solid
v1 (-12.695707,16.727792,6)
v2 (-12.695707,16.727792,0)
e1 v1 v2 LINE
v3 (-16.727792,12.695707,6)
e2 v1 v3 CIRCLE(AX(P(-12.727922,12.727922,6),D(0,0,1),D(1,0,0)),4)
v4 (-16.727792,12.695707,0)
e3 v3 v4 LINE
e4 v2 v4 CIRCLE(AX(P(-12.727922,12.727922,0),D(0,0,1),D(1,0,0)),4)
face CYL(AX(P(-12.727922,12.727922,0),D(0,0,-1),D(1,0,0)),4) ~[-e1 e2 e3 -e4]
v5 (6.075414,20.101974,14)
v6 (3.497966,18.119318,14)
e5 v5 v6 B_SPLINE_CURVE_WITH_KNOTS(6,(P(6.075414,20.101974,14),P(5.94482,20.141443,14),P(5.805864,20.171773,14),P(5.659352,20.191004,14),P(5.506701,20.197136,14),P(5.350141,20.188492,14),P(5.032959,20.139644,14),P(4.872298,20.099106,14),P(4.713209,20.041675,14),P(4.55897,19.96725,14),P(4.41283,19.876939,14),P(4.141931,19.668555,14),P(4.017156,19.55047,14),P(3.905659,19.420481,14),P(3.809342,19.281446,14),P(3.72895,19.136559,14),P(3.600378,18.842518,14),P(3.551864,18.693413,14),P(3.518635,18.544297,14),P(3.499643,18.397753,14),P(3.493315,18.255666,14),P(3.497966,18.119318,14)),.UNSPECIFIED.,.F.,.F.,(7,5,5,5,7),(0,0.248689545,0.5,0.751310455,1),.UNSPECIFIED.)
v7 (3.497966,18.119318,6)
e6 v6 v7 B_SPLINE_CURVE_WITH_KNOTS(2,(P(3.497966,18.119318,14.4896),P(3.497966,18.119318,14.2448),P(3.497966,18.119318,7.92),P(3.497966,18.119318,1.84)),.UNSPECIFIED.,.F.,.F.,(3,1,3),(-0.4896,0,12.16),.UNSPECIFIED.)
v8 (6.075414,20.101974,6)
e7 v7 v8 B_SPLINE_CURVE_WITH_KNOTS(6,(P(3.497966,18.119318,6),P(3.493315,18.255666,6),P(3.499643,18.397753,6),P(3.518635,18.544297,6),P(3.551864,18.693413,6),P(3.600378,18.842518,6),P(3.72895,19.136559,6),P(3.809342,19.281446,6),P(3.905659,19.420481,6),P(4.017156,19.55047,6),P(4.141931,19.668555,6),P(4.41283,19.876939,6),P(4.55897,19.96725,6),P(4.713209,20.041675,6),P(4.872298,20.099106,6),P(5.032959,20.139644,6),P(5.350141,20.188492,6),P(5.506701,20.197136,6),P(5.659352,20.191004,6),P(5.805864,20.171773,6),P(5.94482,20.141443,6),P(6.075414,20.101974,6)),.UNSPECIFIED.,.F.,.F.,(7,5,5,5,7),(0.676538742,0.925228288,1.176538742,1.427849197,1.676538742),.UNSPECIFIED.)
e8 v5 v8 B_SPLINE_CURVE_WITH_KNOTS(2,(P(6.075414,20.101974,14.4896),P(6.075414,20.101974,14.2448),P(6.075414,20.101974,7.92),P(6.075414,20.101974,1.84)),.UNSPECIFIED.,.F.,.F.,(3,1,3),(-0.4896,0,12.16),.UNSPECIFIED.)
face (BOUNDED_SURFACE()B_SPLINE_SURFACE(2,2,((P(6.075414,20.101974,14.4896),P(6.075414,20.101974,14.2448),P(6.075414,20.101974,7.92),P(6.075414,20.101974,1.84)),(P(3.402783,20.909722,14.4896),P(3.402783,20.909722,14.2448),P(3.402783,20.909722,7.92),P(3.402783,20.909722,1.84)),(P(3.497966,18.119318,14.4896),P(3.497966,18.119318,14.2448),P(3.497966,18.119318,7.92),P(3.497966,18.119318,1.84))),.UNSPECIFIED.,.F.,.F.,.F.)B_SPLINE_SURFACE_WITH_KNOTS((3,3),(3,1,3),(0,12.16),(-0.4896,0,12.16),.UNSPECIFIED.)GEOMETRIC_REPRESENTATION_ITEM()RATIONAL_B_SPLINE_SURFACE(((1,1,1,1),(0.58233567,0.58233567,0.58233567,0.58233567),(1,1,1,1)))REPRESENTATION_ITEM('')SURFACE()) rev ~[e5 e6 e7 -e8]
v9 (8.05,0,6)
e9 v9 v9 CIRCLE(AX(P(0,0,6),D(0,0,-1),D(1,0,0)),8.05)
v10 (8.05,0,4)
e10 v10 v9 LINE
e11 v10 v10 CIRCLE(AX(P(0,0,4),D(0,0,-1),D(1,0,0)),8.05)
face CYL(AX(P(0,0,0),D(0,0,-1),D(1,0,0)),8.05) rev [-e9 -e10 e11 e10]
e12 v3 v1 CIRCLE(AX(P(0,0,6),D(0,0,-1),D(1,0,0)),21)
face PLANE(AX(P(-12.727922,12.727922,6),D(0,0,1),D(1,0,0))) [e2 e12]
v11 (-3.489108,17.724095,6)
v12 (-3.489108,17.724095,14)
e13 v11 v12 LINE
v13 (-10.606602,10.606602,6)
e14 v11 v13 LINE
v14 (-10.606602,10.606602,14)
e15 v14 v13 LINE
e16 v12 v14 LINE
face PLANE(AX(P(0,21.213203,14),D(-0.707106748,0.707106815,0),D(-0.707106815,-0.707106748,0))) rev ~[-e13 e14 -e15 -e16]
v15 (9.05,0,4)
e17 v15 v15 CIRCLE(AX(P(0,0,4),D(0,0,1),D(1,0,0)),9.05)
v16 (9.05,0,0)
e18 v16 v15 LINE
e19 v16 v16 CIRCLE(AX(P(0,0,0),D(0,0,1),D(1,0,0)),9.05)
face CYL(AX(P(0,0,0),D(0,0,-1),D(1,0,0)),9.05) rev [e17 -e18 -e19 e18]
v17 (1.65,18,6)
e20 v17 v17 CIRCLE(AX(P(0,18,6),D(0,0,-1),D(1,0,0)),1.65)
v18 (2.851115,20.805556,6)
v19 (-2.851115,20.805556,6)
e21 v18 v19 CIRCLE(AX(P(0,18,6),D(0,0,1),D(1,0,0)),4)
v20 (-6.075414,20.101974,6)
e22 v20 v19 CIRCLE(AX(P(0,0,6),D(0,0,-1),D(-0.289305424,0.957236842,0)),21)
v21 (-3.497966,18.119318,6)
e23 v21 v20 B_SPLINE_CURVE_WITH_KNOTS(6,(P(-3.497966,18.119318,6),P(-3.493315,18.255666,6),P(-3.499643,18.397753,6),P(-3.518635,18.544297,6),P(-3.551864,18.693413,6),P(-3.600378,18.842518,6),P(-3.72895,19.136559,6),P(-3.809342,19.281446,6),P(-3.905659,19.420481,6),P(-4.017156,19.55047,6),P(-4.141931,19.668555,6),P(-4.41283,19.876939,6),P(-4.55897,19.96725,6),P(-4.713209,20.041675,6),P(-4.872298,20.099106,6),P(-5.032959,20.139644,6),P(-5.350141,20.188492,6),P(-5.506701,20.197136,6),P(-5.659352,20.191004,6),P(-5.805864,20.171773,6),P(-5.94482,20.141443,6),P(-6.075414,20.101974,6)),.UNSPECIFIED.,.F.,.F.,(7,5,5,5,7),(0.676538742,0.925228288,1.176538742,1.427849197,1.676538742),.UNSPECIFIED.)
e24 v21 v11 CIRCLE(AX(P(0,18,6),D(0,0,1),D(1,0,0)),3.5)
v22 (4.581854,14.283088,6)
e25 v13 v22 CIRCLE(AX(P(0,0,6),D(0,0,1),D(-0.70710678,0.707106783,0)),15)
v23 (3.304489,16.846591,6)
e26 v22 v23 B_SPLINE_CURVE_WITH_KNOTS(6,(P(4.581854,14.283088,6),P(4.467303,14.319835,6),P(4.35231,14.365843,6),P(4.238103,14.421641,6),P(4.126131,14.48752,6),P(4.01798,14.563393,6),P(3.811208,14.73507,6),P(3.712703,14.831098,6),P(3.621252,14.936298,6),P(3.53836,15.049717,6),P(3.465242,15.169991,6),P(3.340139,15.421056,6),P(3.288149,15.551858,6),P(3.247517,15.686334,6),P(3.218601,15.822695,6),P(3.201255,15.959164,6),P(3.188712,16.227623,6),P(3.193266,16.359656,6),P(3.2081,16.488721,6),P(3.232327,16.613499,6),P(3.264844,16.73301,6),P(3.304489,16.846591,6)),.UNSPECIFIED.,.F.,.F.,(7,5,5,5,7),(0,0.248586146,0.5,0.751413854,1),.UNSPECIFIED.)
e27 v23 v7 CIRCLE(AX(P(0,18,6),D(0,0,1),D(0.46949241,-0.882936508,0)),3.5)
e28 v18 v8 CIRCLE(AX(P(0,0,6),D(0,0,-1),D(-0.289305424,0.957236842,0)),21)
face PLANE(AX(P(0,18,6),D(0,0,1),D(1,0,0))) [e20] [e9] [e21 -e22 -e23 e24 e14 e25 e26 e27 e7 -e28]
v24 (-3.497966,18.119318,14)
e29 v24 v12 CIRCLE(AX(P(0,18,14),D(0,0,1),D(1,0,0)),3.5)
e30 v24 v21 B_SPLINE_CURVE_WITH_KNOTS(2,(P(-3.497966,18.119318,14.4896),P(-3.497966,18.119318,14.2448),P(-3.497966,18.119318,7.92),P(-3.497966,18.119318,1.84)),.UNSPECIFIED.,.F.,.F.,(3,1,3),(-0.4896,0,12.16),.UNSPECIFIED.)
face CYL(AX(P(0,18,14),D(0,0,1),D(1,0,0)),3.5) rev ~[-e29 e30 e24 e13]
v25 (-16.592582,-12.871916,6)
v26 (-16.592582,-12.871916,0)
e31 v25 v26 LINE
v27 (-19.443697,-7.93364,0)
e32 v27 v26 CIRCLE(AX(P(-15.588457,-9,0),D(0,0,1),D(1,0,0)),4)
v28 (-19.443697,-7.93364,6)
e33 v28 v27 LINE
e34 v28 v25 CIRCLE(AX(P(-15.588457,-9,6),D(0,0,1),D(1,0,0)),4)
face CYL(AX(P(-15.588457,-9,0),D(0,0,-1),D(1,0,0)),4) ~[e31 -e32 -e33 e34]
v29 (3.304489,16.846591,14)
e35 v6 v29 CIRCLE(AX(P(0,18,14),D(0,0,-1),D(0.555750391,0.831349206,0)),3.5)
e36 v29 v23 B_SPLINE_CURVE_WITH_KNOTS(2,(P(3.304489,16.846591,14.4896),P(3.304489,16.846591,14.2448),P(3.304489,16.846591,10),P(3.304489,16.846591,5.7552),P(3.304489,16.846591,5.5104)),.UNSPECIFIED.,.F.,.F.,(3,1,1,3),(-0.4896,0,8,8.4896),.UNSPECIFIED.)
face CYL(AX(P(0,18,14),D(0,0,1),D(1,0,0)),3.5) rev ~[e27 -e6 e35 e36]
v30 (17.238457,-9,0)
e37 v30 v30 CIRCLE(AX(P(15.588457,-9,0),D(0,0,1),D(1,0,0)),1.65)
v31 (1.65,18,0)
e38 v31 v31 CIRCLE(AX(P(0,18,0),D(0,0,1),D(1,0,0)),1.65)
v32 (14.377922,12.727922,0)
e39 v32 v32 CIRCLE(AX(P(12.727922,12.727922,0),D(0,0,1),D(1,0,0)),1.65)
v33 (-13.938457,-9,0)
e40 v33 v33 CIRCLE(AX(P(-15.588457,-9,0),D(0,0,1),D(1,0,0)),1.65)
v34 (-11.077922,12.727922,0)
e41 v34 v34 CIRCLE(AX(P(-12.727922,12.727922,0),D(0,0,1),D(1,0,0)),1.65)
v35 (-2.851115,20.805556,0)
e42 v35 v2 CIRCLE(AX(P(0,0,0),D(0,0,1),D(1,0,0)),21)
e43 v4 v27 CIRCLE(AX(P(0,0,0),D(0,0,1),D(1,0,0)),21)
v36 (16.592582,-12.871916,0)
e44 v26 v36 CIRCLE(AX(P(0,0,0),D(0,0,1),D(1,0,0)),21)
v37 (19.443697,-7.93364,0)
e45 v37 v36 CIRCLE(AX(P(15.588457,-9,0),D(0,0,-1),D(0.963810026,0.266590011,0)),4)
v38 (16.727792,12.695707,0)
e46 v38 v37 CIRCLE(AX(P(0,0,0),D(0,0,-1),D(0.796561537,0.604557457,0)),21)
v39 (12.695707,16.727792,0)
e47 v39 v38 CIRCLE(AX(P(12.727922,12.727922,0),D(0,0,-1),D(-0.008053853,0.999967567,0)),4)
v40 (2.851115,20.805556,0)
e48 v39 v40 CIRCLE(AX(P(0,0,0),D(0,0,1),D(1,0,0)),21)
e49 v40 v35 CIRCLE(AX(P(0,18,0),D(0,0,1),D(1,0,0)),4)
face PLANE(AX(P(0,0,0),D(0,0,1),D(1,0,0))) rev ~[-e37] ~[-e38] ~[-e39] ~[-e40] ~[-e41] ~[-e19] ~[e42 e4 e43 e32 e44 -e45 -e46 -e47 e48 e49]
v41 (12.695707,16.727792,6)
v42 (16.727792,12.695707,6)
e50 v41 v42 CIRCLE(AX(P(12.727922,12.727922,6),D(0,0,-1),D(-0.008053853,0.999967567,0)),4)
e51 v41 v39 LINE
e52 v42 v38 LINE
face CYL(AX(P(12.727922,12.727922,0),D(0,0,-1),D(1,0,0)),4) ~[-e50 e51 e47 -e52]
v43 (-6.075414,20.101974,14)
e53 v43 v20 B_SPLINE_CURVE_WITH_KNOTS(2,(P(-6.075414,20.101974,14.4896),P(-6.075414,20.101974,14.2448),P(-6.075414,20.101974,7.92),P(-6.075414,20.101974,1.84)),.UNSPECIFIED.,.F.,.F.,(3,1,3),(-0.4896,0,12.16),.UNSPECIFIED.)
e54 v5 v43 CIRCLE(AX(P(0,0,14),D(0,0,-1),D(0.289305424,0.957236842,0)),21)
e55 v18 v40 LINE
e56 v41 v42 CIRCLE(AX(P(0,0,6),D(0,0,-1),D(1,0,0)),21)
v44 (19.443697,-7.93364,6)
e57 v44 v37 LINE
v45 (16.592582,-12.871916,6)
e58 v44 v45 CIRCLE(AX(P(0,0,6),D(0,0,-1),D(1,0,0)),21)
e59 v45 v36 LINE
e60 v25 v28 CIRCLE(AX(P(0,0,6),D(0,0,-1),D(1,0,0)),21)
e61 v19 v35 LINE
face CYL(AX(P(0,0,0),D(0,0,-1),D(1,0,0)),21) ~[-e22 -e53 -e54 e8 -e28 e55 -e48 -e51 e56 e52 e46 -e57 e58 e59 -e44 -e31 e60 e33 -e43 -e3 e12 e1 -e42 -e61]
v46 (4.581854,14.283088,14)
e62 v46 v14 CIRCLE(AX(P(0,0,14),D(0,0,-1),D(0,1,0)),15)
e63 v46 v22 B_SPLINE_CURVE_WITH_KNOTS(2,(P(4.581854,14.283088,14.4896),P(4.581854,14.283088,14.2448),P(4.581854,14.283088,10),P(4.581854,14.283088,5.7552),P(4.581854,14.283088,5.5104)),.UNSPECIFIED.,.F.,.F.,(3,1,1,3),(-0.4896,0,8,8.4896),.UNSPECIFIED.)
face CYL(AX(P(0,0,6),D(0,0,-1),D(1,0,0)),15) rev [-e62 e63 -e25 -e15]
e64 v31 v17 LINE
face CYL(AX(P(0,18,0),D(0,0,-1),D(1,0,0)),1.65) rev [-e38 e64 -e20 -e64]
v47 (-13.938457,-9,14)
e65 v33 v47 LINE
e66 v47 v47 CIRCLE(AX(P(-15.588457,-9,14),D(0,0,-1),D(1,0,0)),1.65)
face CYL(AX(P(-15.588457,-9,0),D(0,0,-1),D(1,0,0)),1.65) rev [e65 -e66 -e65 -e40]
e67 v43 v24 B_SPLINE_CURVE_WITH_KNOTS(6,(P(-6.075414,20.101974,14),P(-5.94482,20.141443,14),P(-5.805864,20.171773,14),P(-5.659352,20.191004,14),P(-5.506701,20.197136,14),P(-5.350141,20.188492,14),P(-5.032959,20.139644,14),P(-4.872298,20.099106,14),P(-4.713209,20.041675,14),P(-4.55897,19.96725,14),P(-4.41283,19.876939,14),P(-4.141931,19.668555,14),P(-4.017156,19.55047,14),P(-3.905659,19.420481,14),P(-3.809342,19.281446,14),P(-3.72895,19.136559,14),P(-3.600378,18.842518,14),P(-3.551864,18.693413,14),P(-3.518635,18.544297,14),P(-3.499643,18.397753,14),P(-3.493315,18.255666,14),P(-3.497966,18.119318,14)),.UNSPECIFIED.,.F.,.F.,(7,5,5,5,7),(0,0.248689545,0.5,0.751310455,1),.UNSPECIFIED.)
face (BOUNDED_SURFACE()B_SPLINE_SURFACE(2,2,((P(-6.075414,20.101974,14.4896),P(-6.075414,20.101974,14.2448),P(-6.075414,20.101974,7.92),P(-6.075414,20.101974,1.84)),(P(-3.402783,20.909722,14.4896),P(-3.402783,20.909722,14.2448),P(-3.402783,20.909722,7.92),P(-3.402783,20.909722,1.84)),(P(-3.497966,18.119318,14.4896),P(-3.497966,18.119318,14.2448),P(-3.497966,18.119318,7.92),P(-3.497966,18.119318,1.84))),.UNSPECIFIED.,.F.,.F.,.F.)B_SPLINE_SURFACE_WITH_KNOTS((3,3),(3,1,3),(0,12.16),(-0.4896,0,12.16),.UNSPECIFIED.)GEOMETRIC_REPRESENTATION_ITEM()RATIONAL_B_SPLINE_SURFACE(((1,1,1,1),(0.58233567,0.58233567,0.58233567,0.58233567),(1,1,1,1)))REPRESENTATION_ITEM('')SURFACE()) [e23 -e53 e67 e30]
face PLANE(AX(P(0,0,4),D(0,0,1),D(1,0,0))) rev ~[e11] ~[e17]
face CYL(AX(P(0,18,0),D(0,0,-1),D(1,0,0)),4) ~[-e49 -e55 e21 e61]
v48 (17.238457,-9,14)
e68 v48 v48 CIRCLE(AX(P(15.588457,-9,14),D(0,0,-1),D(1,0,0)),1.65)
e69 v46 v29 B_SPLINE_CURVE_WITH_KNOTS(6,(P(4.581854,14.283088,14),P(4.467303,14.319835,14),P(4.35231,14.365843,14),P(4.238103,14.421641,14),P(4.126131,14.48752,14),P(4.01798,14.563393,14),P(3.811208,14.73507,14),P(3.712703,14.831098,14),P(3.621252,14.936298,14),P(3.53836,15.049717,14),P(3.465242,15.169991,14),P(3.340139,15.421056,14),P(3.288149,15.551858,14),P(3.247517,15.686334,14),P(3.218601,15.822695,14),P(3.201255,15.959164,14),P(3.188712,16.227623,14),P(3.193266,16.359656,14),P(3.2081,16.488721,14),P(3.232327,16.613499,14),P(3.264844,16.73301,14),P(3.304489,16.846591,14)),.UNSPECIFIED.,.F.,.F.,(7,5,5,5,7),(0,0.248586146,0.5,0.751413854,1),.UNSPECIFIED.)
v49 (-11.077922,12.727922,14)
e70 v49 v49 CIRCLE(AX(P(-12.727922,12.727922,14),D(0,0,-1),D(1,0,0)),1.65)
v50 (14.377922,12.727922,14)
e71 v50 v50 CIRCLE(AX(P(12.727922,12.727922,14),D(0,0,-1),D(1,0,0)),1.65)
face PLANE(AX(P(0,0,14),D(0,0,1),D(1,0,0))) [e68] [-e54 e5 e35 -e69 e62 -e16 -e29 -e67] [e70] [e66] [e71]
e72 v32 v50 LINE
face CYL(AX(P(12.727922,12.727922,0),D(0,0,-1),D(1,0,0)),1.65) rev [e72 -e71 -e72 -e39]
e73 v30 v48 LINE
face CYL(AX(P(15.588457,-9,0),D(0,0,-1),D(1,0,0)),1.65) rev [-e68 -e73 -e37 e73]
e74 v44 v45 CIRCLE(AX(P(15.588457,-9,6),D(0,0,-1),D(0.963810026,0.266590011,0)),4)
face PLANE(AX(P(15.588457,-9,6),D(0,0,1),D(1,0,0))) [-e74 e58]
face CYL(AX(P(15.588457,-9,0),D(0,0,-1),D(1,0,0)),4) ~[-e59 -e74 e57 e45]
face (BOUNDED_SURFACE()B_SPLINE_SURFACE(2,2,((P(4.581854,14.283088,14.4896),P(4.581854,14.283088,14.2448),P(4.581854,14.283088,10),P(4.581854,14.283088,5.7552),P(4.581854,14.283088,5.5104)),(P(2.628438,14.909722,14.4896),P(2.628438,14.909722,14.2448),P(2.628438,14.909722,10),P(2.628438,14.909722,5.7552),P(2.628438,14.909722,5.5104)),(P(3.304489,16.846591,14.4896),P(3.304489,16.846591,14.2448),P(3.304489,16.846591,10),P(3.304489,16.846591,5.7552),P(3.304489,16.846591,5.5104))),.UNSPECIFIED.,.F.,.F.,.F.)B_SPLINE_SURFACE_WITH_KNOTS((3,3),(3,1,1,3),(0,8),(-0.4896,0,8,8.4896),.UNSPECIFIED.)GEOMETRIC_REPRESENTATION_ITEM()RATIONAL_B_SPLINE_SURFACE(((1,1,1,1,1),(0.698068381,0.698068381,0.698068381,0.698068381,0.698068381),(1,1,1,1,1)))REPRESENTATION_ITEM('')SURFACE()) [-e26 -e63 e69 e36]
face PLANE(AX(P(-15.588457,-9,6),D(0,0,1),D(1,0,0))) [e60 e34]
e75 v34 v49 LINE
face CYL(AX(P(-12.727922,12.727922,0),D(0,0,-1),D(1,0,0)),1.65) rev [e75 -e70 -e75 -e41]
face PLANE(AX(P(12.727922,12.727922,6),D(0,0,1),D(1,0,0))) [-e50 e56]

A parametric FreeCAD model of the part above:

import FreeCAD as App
import Part
import Sketcher

V = App.Vector
Q = App.Units.Quantity


def edges_at(feature, points):
    """Names of the edges that pass closest to the given points."""
    edges = feature.Shape.Edges
    near = lambda p: min(range(len(edges)), key=lambda i: edges[i].distToShape(Part.Vertex(*p))[0])
    return sorted({f"Edge{near(p) + 1}" for p in points})


def add_polygon(sketch, points):
    """Adds a closed chain of lines whose ends are joined by coincident constraints."""
    first, n = sketch.GeometryCount, len(points)
    for a, b in zip(points, points[1:] + points[:1]):
        sketch.addGeometry(Part.LineSegment(App.Vector(*a, 0), App.Vector(*b, 0)), False)
    for i in range(n):
        sketch.addConstraint(Sketcher.Constraint("Coincident", first + i, 2, first + (i + 1) % n, 1))

doc = App.newDocument("Part")
body = doc.addObject("PartDesign::Body", "Body")

# Sketch on XY plane
sketch1 = body.newObject("Sketcher::SketchObject", "Sketch")
sketch1.AttachmentSupport = (doc.getObject("XY_Plane"), [""])
sketch1.MapMode = "FlatFace"
sketch1.addGeometry(Part.Circle(V(0, 0, 0), V(0, 0, 1), 21), False)
sketch1.addConstraint(Sketcher.Constraint("Coincident", 0, 3, -1, 1))
sketch1.addConstraint(Sketcher.Constraint("Diameter", 0, Q("42 mm")))
pad1 = body.newObject("PartDesign::Pad", "Pad")
pad1.Profile = sketch1
pad1.Length = 14

# Sketch on XY plane
sketch2 = body.newObject("Sketcher::SketchObject", "Sketch001")
sketch2.AttachmentSupport = (doc.getObject("XY_Plane"), [""])
sketch2.MapMode = "FlatFace"
sketch2.addGeometry(Part.Circle(V(0, 0, 0), V(0, 0, 1), 9.05), False)
sketch2.addConstraint(Sketcher.Constraint("Coincident", 0, 3, -1, 1))
sketch2.addConstraint(Sketcher.Constraint("Diameter", 0, Q("18.1 mm")))
pocket1 = body.newObject("PartDesign::Pocket", "Pocket")
pocket1.Profile = sketch2
pocket1.Length = 4
pocket1.Reversed = True

# Sketch on XY plane
sketch3 = body.newObject("Sketcher::SketchObject", "Sketch002")
sketch3.AttachmentSupport = (doc.getObject("XY_Plane"), [""])
sketch3.MapMode = "FlatFace"
sketch3.addGeometry(Part.Circle(V(0, 0, 0), V(0, 0, 1), 8.05), False)
sketch3.addConstraint(Sketcher.Constraint("Coincident", 0, 3, -1, 1))
sketch3.addConstraint(Sketcher.Constraint("Diameter", 0, Q("16.1 mm")))
pocket2 = body.newObject("PartDesign::Pocket", "Pocket001")
pocket2.Profile = sketch3
pocket2.Type = "ThroughAll"
pocket2.Reversed = True

# Sketch on XY plane
sketch4 = body.newObject("Sketcher::SketchObject", "Sketch003")
sketch4.AttachmentSupport = (doc.getObject("XY_Plane"), [""])
sketch4.MapMode = "FlatFace"
sketch4.AttachmentOffset = App.Placement(V(0, 0, 6), App.Rotation())
sketch4.addGeometry(Part.Circle(V(0, 0, 0), V(0, 0, 1), 15), False)
sketch4.addConstraint(Sketcher.Constraint("Coincident", 0, 3, -1, 1))
sketch4.addConstraint(Sketcher.Constraint("Diameter", 0, Q("30 mm")))
pocket3 = body.newObject("PartDesign::Pocket", "Pocket002")
pocket3.Profile = sketch4
pocket3.Type = "ThroughAll"
pocket3.Reversed = True

# Sketch on XY plane
sketch5 = body.newObject("Sketcher::SketchObject", "Sketch004")
sketch5.AttachmentSupport = (doc.getObject("XY_Plane"), [""])
sketch5.MapMode = "FlatFace"
sketch5.AttachmentOffset = App.Placement(V(0, 0, 14), App.Rotation())
add_polygon(sketch5, [(-10.606602, 10.606602), (0, 10.606602), (0, 21.213203)])  # lines 0-2
sketch5.addConstraint(Sketcher.Constraint("Horizontal", 0))
sketch5.addConstraint(Sketcher.Constraint("Vertical", 1))
sketch5.addConstraint(Sketcher.Constraint("PointOnObject", 0, 2, -2))
sketch5.addConstraint(Sketcher.Constraint("Equal", 0, 1))
sketch5.addConstraint(Sketcher.Constraint("Distance", 2, Q("15 mm")))
sketch5.addConstraint(Sketcher.Constraint("DistanceY", -1, 1, 0, 2, Q("10.606602 mm")))
pocket4 = body.newObject("PartDesign::Pocket", "Pocket003")
pocket4.Profile = sketch5
pocket4.Length = 8

# Sketch on XY plane
sketch6 = body.newObject("Sketcher::SketchObject", "Sketch005")
sketch6.AttachmentSupport = (doc.getObject("XY_Plane"), [""])
sketch6.MapMode = "FlatFace"
sketch6.AttachmentOffset = App.Placement(V(0, 0, 14), App.Rotation())
sketch6.addGeometry(Part.Circle(V(0, 18, 0), V(0, 0, 1), 3.5), False)
sketch6.addConstraint(Sketcher.Constraint("PointOnObject", 0, 3, -2))
sketch6.addConstraint(Sketcher.Constraint("Diameter", 0, Q("7 mm")))
sketch6.addConstraint(Sketcher.Constraint("DistanceY", -1, 1, 0, 3, Q("18 mm")))
pocket5 = body.newObject("PartDesign::Pocket", "Pocket004")
pocket5.Profile = sketch6
pocket5.Length = 8
doc.recompute()

fillet = body.newObject("PartDesign::Fillet", "Fillet")
fillet.Base = (pocket5, edges_at(pocket5, [(-1.945, 20.91, 10), (1.945, 20.91, 10), (1.643, 14.91, 10)]))
fillet.Radius = 2

# Sketch on XY plane
sketch7 = body.newObject("Sketcher::SketchObject", "Sketch006")
sketch7.AttachmentSupport = (doc.getObject("XY_Plane"), [""])
sketch7.MapMode = "FlatFace"
sketch7.addGeometry(Part.Circle(V(0, 18, 0), V(0, 0, 1), 4), False)
sketch7.addGeometry(Part.Circle(V(-12.727922, 12.727922, 0), V(0, 0, 1), 4), False)
sketch7.addGeometry(Part.Circle(V(12.727922, 12.727922, 0), V(0, 0, 1), 4), False)
sketch7.addGeometry(Part.Circle(V(-15.588457, -9, 0), V(0, 0, 1), 4), False)
sketch7.addGeometry(Part.Circle(V(15.588457, -9, 0), V(0, 0, 1), 4), False)
sketch7.addConstraint(Sketcher.Constraint("Equal", 0, 1))
sketch7.addConstraint(Sketcher.Constraint("Equal", 1, 2))
sketch7.addConstraint(Sketcher.Constraint("Equal", 2, 3))
sketch7.addConstraint(Sketcher.Constraint("Equal", 3, 4))
sketch7.addConstraint(Sketcher.Constraint("Symmetric", 1, 3, 2, 3, -2))
sketch7.addConstraint(Sketcher.Constraint("Symmetric", 3, 3, 4, 3, -2))
sketch7.addConstraint(Sketcher.Constraint("PointOnObject", 0, 3, -2))
sketch7.addConstraint(Sketcher.Constraint("Diameter", 0, Q("8 mm")))
sketch7.addConstraint(Sketcher.Constraint("DistanceY", -1, 1, 0, 3, Q("18 mm")))
sketch7.addConstraint(Sketcher.Constraint("DistanceY", 3, 3, -1, 1, Q("9 mm")))
sketch7.addConstraint(Sketcher.Constraint("DistanceY", 1, 3, 0, 3, Q("5.272078 mm")))
sketch7.addConstraint(Sketcher.Constraint("DistanceX", 3, 3, 2, 3, Q("28.316379 mm")))
sketch7.addConstraint(Sketcher.Constraint("DistanceX", 1, 3, -1, 1, Q("12.727922 mm")))
pad2 = body.newObject("PartDesign::Pad", "Pad001")
pad2.Profile = sketch7
pad2.Length = 6

# Sketch on XY plane
sketch8 = body.newObject("Sketcher::SketchObject", "Sketch007")
sketch8.AttachmentSupport = (doc.getObject("XY_Plane"), [""])
sketch8.MapMode = "FlatFace"
sketch8.addGeometry(Part.Circle(V(-12.727922, 12.727922, 0), V(0, 0, 1), 1.65), False)
sketch8.addGeometry(Part.Circle(V(12.727922, 12.727922, 0), V(0, 0, 1), 1.65), False)
sketch8.addGeometry(Part.Circle(V(0, 18, 0), V(0, 0, 1), 1.65), False)
sketch8.addGeometry(Part.Circle(V(-15.588457, -9, 0), V(0, 0, 1), 1.65), False)
sketch8.addGeometry(Part.Circle(V(15.588457, -9, 0), V(0, 0, 1), 1.65), False)
sketch8.addConstraint(Sketcher.Constraint("Equal", 0, 1))
sketch8.addConstraint(Sketcher.Constraint("Equal", 1, 2))
sketch8.addConstraint(Sketcher.Constraint("Equal", 2, 3))
sketch8.addConstraint(Sketcher.Constraint("Equal", 3, 4))
sketch8.addConstraint(Sketcher.Constraint("Symmetric", 0, 3, 1, 3, -2))
sketch8.addConstraint(Sketcher.Constraint("Symmetric", 3, 3, 4, 3, -2))
sketch8.addConstraint(Sketcher.Constraint("PointOnObject", 2, 3, -2))
sketch8.addConstraint(Sketcher.Constraint("Diameter", 0, Q("3.3 mm")))
sketch8.addConstraint(Sketcher.Constraint("DistanceY", -1, 1, 2, 3, Q("18 mm")))
sketch8.addConstraint(Sketcher.Constraint("DistanceY", 3, 3, -1, 1, Q("9 mm")))
sketch8.addConstraint(Sketcher.Constraint("DistanceY", 0, 3, 2, 3, Q("5.272078 mm")))
sketch8.addConstraint(Sketcher.Constraint("DistanceX", 3, 3, 1, 3, Q("28.316379 mm")))
sketch8.addConstraint(Sketcher.Constraint("DistanceX", 0, 3, -1, 1, Q("12.727922 mm")))
pocket6 = body.newObject("PartDesign::Pocket", "Pocket005")
pocket6.Profile = sketch8
pocket6.Type = "ThroughAll"
pocket6.Reversed = True

doc.recompute()
